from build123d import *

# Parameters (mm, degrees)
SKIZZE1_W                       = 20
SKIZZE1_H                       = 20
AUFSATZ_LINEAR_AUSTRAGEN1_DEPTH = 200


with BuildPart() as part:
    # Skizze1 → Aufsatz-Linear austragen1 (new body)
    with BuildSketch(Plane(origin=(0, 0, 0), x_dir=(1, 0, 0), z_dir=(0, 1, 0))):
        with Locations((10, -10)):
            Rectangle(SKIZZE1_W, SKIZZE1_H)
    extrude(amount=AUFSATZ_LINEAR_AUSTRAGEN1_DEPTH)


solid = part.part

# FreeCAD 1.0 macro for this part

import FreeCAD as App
import Part
import Sketcher
Q = App.Units.Quantity


def add_polygon(sketch, points):
    """Adds a closed chain of lines whose ends are joined by coincident constraints."""
    first, n = sketch.GeometryCount, len(points)
    for a, b in zip(points, points[1:] + points[:1]):
        sketch.addGeometry(Part.LineSegment(App.Vector(*a, 0), App.Vector(*b, 0)), False)
    for i in range(n):
        sketch.addConstraint(Sketcher.Constraint("Coincident", first + i, 2, first + (i + 1) % n, 1))

doc = App.newDocument("Part")
body = doc.addObject("PartDesign::Body", "Body")

# Sketch on XZ plane
sketch1 = body.newObject("Sketcher::SketchObject", "Sketch")
sketch1.AttachmentSupport = (doc.getObject("XZ_Plane"), [""])
sketch1.MapMode = "FlatFace"
add_polygon(sketch1, [(0, 0), (0, 20), (20, 20), (20, 0)])  # lines 0-3
sketch1.addConstraint([
    Sketcher.Constraint("Vertical", 0),
    Sketcher.Constraint("Horizontal", 1),
    Sketcher.Constraint("Vertical", 2),
    Sketcher.Constraint("Horizontal", 3),
    Sketcher.Constraint("Coincident", 3, 2, -1, 1),
    Sketcher.Constraint("Equal", 3, 0),
    Sketcher.Constraint("DistanceX", 1, 1, 1, 2, Q("20 mm")),
])
pad1 = body.newObject("PartDesign::Pad", "Pad")
pad1.Profile = sketch1
pad1.Length = 200
pad1.Reversed = True

doc.recompute()
